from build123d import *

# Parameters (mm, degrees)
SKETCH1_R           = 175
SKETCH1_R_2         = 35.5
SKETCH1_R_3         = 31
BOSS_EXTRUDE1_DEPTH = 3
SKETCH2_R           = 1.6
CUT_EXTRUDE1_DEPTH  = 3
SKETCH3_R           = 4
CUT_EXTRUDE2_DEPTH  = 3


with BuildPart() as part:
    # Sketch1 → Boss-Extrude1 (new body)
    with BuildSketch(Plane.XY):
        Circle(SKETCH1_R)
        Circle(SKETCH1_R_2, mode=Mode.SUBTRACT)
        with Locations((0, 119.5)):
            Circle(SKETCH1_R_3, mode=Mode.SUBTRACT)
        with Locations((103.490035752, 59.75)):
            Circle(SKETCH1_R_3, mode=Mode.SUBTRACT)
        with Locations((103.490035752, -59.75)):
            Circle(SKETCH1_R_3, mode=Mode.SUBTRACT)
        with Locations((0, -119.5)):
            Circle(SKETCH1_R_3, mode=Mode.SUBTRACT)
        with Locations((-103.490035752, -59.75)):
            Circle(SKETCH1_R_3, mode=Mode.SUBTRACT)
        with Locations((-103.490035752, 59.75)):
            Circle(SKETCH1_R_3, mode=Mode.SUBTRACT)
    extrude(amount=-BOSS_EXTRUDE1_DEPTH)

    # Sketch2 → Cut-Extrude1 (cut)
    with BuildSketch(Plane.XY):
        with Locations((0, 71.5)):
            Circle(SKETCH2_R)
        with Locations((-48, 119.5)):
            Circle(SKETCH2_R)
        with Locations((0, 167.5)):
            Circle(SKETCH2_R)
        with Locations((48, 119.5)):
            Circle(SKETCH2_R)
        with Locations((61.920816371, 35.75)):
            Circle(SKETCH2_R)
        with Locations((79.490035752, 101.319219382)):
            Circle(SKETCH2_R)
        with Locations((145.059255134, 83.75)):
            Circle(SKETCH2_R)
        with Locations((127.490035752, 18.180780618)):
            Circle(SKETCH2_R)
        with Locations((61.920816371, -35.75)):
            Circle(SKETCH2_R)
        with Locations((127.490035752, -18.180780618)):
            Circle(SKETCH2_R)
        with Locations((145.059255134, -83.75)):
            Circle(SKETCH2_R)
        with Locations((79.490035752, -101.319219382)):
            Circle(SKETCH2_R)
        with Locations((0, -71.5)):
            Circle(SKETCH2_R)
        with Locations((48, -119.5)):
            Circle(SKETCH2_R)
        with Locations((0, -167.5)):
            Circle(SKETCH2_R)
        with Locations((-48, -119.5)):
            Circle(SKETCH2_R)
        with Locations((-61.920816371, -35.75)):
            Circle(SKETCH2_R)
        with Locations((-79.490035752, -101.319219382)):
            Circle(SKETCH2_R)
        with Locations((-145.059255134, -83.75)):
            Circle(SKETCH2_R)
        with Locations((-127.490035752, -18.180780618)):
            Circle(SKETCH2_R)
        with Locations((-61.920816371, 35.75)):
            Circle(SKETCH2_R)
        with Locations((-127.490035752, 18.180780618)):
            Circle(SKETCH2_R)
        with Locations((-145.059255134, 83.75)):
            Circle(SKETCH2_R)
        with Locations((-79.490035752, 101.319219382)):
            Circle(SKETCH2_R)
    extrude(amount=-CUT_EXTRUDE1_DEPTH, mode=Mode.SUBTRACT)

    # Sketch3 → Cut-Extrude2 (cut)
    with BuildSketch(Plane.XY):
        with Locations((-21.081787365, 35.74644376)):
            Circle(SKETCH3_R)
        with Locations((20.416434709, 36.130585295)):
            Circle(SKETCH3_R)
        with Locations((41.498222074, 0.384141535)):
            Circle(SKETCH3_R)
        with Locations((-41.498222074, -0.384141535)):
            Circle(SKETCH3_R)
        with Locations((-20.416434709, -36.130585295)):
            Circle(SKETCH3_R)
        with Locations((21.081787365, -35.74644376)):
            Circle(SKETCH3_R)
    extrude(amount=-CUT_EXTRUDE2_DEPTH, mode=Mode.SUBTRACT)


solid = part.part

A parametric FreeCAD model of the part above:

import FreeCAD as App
import Part
import Sketcher
Q = App.Units.Quantity

doc = App.newDocument("Part")
body = doc.addObject("PartDesign::Body", "Body")

sketch1 = doc.addObject("Sketcher::SketchObject", "Sketch")
body.addObject(sketch1)
sketch1.AttachmentSupport = (doc.XY_Plane, [""])
sketch1.MapMode = "FlatFace"
sketch1.addGeometry(Part.Circle(App.Vector(0, 0, 0), App.Vector(0, 0, 1), 175), False)
sketch1.addGeometry(Part.Circle(App.Vector(-103.490036, -59.75, 0), App.Vector(0, 0, 1), 31), False)
sketch1.addGeometry(Part.Circle(App.Vector(0, -119.5, 0), App.Vector(0, 0, 1), 31), False)
sketch1.addGeometry(Part.Circle(App.Vector(103.490036, -59.75, 0), App.Vector(0, 0, 1), 31), False)
sketch1.addGeometry(Part.Circle(App.Vector(-103.490036, 59.75, 0), App.Vector(0, 0, 1), 31), False)
sketch1.addGeometry(Part.Circle(App.Vector(0, 0, 0), App.Vector(0, 0, 1), 35.5), False)
sketch1.addGeometry(Part.Circle(App.Vector(103.490036, 59.75, 0), App.Vector(0, 0, 1), 31), False)
sketch1.addGeometry(Part.Circle(App.Vector(0, 119.5, 0), App.Vector(0, 0, 1), 31), False)
sketch1.addConstraint(Sketcher.Constraint("Coincident", 0, 3, -1, 1))
sketch1.addConstraint(Sketcher.Constraint("Coincident", 5, 3, -1, 1))
sketch1.addConstraint(Sketcher.Constraint("Equal", 1, 2))
sketch1.addConstraint(Sketcher.Constraint("Equal", 2, 3))
sketch1.addConstraint(Sketcher.Constraint("Equal", 3, 4))
sketch1.addConstraint(Sketcher.Constraint("Equal", 4, 6))
sketch1.addConstraint(Sketcher.Constraint("Equal", 6, 7))
sketch1.addConstraint(Sketcher.Constraint("Symmetric", 3, 3, 4, 3, -1, 1))
sketch1.addConstraint(Sketcher.Constraint("Symmetric", 1, 3, 6, 3, -1, 1))
sketch1.addConstraint(Sketcher.Constraint("Symmetric", 2, 3, 7, 3, -1, 1))
sketch1.addConstraint(Sketcher.Constraint("Symmetric", 1, 3, 3, 3, -2))
sketch1.addConstraint(Sketcher.Constraint("PointOnObject", 2, 3, -2))
sketch1.addConstraint(Sketcher.Constraint("Diameter", 0, Q("350 mm")))
sketch1.addConstraint(Sketcher.Constraint("Diameter", 1, Q("62 mm")))
sketch1.addConstraint(Sketcher.Constraint("Diameter", 5, Q("71 mm")))
sketch1.addConstraint(Sketcher.Constraint("DistanceY", 2, 3, -1, 1, Q("119.5 mm")))
sketch1.addConstraint(Sketcher.Constraint("DistanceY", 1, 3, 4, 3, Q("119.5 mm")))
sketch1.addConstraint(Sketcher.Constraint("DistanceX", 1, 3, 3, 3, Q("206.980072 mm")))
pad1 = doc.addObject("PartDesign::Pad", "Pad")
body.addObject(pad1)
pad1.Profile = sketch1
pad1.Length = 3
pad1.Reversed = True

sketch2 = doc.addObject("Sketcher::SketchObject", "Sketch001")
body.addObject(sketch2)
sketch2.AttachmentSupport = (doc.XY_Plane, [""])
sketch2.MapMode = "FlatFace"
sketch2.addGeometry(Part.Circle(App.Vector(0, 71.5, 0), App.Vector(0, 0, 1), 1.6), False)
sketch2.addGeometry(Part.Circle(App.Vector(-48, 119.5, 0), App.Vector(0, 0, 1), 1.6), False)
sketch2.addGeometry(Part.Circle(App.Vector(0, 167.5, 0), App.Vector(0, 0, 1), 1.6), False)
sketch2.addGeometry(Part.Circle(App.Vector(48, 119.5, 0), App.Vector(0, 0, 1), 1.6), False)
sketch2.addGeometry(Part.Circle(App.Vector(61.920816, 35.75, 0), App.Vector(0, 0, 1), 1.6), False)
sketch2.addGeometry(Part.Circle(App.Vector(79.490036, 101.319219, 0), App.Vector(0, 0, 1), 1.6), False)
sketch2.addGeometry(Part.Circle(App.Vector(145.059255, 83.75, 0), App.Vector(0, 0, 1), 1.6), False)
sketch2.addGeometry(Part.Circle(App.Vector(127.490036, 18.180781, 0), App.Vector(0, 0, 1), 1.6), False)
sketch2.addGeometry(Part.Circle(App.Vector(61.920816, -35.75, 0), App.Vector(0, 0, 1), 1.6), False)
sketch2.addGeometry(Part.Circle(App.Vector(127.490036, -18.180781, 0), App.Vector(0, 0, 1), 1.6), False)
sketch2.addGeometry(Part.Circle(App.Vector(145.059255, -83.75, 0), App.Vector(0, 0, 1), 1.6), False)
sketch2.addGeometry(Part.Circle(App.Vector(79.490036, -101.319219, 0), App.Vector(0, 0, 1), 1.6), False)
sketch2.addGeometry(Part.Circle(App.Vector(0, -71.5, 0), App.Vector(0, 0, 1), 1.6), False)
sketch2.addGeometry(Part.Circle(App.Vector(48, -119.5, 0), App.Vector(0, 0, 1), 1.6), False)
sketch2.addGeometry(Part.Circle(App.Vector(0, -167.5, 0), App.Vector(0, 0, 1), 1.6), False)
sketch2.addGeometry(Part.Circle(App.Vector(-48, -119.5, 0), App.Vector(0, 0, 1), 1.6), False)
sketch2.addGeometry(Part.Circle(App.Vector(-61.920816, -35.75, 0), App.Vector(0, 0, 1), 1.6), False)
sketch2.addGeometry(Part.Circle(App.Vector(-79.490036, -101.319219, 0), App.Vector(0, 0, 1), 1.6), False)
sketch2.addGeometry(Part.Circle(App.Vector(-145.059255, -83.75, 0), App.Vector(0, 0, 1), 1.6), False)
sketch2.addGeometry(Part.Circle(App.Vector(-127.490036, -18.180781, 0), App.Vector(0, 0, 1), 1.6), False)
sketch2.addGeometry(Part.Circle(App.Vector(-61.920816, 35.75, 0), App.Vector(0, 0, 1), 1.6), False)
sketch2.addGeometry(Part.Circle(App.Vector(-127.490036, 18.180781, 0), App.Vector(0, 0, 1), 1.6), False)
sketch2.addGeometry(Part.Circle(App.Vector(-145.059255, 83.75, 0), App.Vector(0, 0, 1), 1.6), False)
sketch2.addGeometry(Part.Circle(App.Vector(-79.490036, 101.319219, 0), App.Vector(0, 0, 1), 1.6), False)
sketch2.addConstraint(Sketcher.Constraint("Equal", 0, 1))
sketch2.addConstraint(Sketcher.Constraint("Equal", 1, 2))
sketch2.addConstraint(Sketcher.Constraint("Equal", 2, 3))
sketch2.addConstraint(Sketcher.Constraint("Equal", 3, 4))
sketch2.addConstraint(Sketcher.Constraint("Equal", 4, 5))
sketch2.addConstraint(Sketcher.Constraint("Equal", 5, 6))
sketch2.addConstraint(Sketcher.Constraint("Equal", 6, 7))
sketch2.addConstraint(Sketcher.Constraint("Equal", 7, 8))
sketch2.addConstraint(Sketcher.Constraint("Equal", 8, 9))
sketch2.addConstraint(Sketcher.Constraint("Equal", 9, 10))
sketch2.addConstraint(Sketcher.Constraint("Equal", 10, 11))
sketch2.addConstraint(Sketcher.Constraint("Equal", 11, 12))
sketch2.addConstraint(Sketcher.Constraint("Equal", 12, 13))
sketch2.addConstraint(Sketcher.Constraint("Equal", 13, 14))
sketch2.addConstraint(Sketcher.Constraint("Equal", 14, 15))
sketch2.addConstraint(Sketcher.Constraint("Equal", 15, 16))
sketch2.addConstraint(Sketcher.Constraint("Equal", 16, 17))
sketch2.addConstraint(Sketcher.Constraint("Equal", 17, 18))
sketch2.addConstraint(Sketcher.Constraint("Equal", 18, 19))
sketch2.addConstraint(Sketcher.Constraint("Equal", 19, 20))
sketch2.addConstraint(Sketcher.Constraint("Equal", 20, 21))
sketch2.addConstraint(Sketcher.Constraint("Equal", 21, 22))
sketch2.addConstraint(Sketcher.Constraint("Equal", 22, 23))
sketch2.addConstraint(Sketcher.Constraint("Symmetric", 0, 3, 12, 3, -1, 1))
sketch2.addConstraint(Sketcher.Constraint("Symmetric", 1, 3, 13, 3, -1, 1))
sketch2.addConstraint(Sketcher.Constraint("Symmetric", 2, 3, 14, 3, -1, 1))
sketch2.addConstraint(Sketcher.Constraint("Symmetric", 3, 3, 15, 3, -1, 1))
sketch2.addConstraint(Sketcher.Constraint("Symmetric", 4, 3, 16, 3, -1, 1))
sketch2.addConstraint(Sketcher.Constraint("Symmetric", 5, 3, 17, 3, -1, 1))
sketch2.addConstraint(Sketcher.Constraint("Symmetric", 6, 3, 18, 3, -1, 1))
sketch2.addConstraint(Sketcher.Constraint("Symmetric", 7, 3, 19, 3, -1, 1))
sketch2.addConstraint(Sketcher.Constraint("Symmetric", 8, 3, 20, 3, -1, 1))
sketch2.addConstraint(Sketcher.Constraint("Symmetric", 9, 3, 21, 3, -1, 1))
sketch2.addConstraint(Sketcher.Constraint("Symmetric", 10, 3, 22, 3, -1, 1))
sketch2.addConstraint(Sketcher.Constraint("Symmetric", 11, 3, 23, 3, -1, 1))
sketch2.addConstraint(Sketcher.Constraint("Symmetric", 1, 3, 3, 3, -2))
sketch2.addConstraint(Sketcher.Constraint("Symmetric", 8, 3, 16, 3, -2))
sketch2.addConstraint(Sketcher.Constraint("Symmetric", 11, 3, 17, 3, -2))
sketch2.addConstraint(Sketcher.Constraint("Symmetric", 10, 3, 18, 3, -2))
sketch2.addConstraint(Sketcher.Constraint("Symmetric", 9, 3, 19, 3, -2))
sketch2.addConstraint(Sketcher.Constraint("PointOnObject", 0, 3, -2))
sketch2.addConstraint(Sketcher.Constraint("PointOnObject", 2, 3, -2))
sketch2.addConstraint(Sketcher.Constraint("Diameter", 0, Q("3.2 mm")))
sketch2.addConstraint(Sketcher.Constraint("DistanceX", 1, 3, -1, 1, Q("48 mm")))
sketch2.addConstraint(Sketcher.Constraint("DistanceY", 0, 3, 1, 3, Q("48 mm")))
sketch2.addConstraint(Sketcher.Constraint("DistanceY", 1, 3, 2, 3, Q("48 mm")))
sketch2.addConstraint(Sketcher.Constraint("DistanceY", 4, 3, 6, 3, Q("48 mm")))
sketch2.addConstraint(Sketcher.Constraint("DistanceX", 5, 3, 7, 3, Q("48 mm")))
sketch2.addConstraint(Sketcher.Constraint("DistanceY", 12, 3, 0, 3, Q("143 mm")))
sketch2.addConstraint(Sketcher.Constraint("DistanceY", 8, 3, 4, 3, Q("71.5 mm")))
sketch2.addConstraint(Sketcher.Constraint("DistanceY", 9, 3, 5, 3, Q("119.5 mm")))
sketch2.addConstraint(Sketcher.Constraint("DistanceY", -1, 1, 5, 3, Q("101.319219 mm")))
sketch2.addConstraint(Sketcher.Constraint("DistanceX", 4, 3, 5, 3, Q("17.569219 mm")))
sketch2.addConstraint(Sketcher.Constraint("DistanceX", 5, 3, 6, 3, Q("65.569219 mm")))
sketch2.addConstraint(Sketcher.Constraint("DistanceX", -1, 1, 4, 3, Q("61.920816 mm")))
pocket1 = doc.addObject("PartDesign::Pocket", "Pocket")
body.addObject(pocket1)
pocket1.Profile = sketch2
pocket1.Length = 3

sketch3 = doc.addObject("Sketcher::SketchObject", "Sketch002")
body.addObject(sketch3)
sketch3.AttachmentSupport = (doc.XY_Plane, [""])
sketch3.MapMode = "FlatFace"
sketch3.addGeometry(Part.Circle(App.Vector(-21.081787, 35.746444, 0), App.Vector(0, 0, 1), 4), False)
sketch3.addGeometry(Part.Circle(App.Vector(20.416435, 36.130585, 0), App.Vector(0, 0, 1), 4), False)
sketch3.addGeometry(Part.Circle(App.Vector(41.498222, 0.384142, 0), App.Vector(0, 0, 1), 4), False)
sketch3.addGeometry(Part.Circle(App.Vector(-41.498222, -0.384142, 0), App.Vector(0, 0, 1), 4), False)
sketch3.addGeometry(Part.Circle(App.Vector(-20.416435, -36.130585, 0), App.Vector(0, 0, 1), 4), False)
sketch3.addGeometry(Part.Circle(App.Vector(21.081787, -35.746444, 0), App.Vector(0, 0, 1), 4), False)
sketch3.addConstraint(Sketcher.Constraint("Equal", 0, 1))
sketch3.addConstraint(Sketcher.Constraint("Equal", 1, 2))
sketch3.addConstraint(Sketcher.Constraint("Equal", 2, 3))
sketch3.addConstraint(Sketcher.Constraint("Equal", 3, 4))
sketch3.addConstraint(Sketcher.Constraint("Equal", 4, 5))
sketch3.addConstraint(Sketcher.Constraint("Symmetric", 2, 3, 3, 3, -1, 1))
sketch3.addConstraint(Sketcher.Constraint("Symmetric", 1, 3, 4, 3, -1, 1))
sketch3.addConstraint(Sketcher.Constraint("Symmetric", 0, 3, 5, 3, -1, 1))
sketch3.addConstraint(Sketcher.Constraint("Diameter", 0, Q("8 mm")))
sketch3.addConstraint(Sketcher.Constraint("DistanceY", -1, 1, 2, 3, Q("0.384142 mm")))
sketch3.addConstraint(Sketcher.Constraint("DistanceY", 0, 3, 1, 3, Q("0.384142 mm")))
sketch3.addConstraint(Sketcher.Constraint("DistanceX", 0, 3, 2, 3, Q("62.580009 mm")))
sketch3.addConstraint(Sketcher.Constraint("DistanceY", 4, 3, 0, 3, Q("71.877029 mm")))
sketch3.addConstraint(Sketcher.Constraint("DistanceX", 4, 3, 1, 3, Q("40.832869 mm")))
sketch3.addConstraint(Sketcher.Constraint("DistanceX", 0, 3, -1, 1, Q("21.081787 mm")))
pocket2 = doc.addObject("PartDesign::Pocket", "Pocket001")
body.addObject(pocket2)
pocket2.Profile = sketch3
pocket2.Length = 3

doc.recompute()
